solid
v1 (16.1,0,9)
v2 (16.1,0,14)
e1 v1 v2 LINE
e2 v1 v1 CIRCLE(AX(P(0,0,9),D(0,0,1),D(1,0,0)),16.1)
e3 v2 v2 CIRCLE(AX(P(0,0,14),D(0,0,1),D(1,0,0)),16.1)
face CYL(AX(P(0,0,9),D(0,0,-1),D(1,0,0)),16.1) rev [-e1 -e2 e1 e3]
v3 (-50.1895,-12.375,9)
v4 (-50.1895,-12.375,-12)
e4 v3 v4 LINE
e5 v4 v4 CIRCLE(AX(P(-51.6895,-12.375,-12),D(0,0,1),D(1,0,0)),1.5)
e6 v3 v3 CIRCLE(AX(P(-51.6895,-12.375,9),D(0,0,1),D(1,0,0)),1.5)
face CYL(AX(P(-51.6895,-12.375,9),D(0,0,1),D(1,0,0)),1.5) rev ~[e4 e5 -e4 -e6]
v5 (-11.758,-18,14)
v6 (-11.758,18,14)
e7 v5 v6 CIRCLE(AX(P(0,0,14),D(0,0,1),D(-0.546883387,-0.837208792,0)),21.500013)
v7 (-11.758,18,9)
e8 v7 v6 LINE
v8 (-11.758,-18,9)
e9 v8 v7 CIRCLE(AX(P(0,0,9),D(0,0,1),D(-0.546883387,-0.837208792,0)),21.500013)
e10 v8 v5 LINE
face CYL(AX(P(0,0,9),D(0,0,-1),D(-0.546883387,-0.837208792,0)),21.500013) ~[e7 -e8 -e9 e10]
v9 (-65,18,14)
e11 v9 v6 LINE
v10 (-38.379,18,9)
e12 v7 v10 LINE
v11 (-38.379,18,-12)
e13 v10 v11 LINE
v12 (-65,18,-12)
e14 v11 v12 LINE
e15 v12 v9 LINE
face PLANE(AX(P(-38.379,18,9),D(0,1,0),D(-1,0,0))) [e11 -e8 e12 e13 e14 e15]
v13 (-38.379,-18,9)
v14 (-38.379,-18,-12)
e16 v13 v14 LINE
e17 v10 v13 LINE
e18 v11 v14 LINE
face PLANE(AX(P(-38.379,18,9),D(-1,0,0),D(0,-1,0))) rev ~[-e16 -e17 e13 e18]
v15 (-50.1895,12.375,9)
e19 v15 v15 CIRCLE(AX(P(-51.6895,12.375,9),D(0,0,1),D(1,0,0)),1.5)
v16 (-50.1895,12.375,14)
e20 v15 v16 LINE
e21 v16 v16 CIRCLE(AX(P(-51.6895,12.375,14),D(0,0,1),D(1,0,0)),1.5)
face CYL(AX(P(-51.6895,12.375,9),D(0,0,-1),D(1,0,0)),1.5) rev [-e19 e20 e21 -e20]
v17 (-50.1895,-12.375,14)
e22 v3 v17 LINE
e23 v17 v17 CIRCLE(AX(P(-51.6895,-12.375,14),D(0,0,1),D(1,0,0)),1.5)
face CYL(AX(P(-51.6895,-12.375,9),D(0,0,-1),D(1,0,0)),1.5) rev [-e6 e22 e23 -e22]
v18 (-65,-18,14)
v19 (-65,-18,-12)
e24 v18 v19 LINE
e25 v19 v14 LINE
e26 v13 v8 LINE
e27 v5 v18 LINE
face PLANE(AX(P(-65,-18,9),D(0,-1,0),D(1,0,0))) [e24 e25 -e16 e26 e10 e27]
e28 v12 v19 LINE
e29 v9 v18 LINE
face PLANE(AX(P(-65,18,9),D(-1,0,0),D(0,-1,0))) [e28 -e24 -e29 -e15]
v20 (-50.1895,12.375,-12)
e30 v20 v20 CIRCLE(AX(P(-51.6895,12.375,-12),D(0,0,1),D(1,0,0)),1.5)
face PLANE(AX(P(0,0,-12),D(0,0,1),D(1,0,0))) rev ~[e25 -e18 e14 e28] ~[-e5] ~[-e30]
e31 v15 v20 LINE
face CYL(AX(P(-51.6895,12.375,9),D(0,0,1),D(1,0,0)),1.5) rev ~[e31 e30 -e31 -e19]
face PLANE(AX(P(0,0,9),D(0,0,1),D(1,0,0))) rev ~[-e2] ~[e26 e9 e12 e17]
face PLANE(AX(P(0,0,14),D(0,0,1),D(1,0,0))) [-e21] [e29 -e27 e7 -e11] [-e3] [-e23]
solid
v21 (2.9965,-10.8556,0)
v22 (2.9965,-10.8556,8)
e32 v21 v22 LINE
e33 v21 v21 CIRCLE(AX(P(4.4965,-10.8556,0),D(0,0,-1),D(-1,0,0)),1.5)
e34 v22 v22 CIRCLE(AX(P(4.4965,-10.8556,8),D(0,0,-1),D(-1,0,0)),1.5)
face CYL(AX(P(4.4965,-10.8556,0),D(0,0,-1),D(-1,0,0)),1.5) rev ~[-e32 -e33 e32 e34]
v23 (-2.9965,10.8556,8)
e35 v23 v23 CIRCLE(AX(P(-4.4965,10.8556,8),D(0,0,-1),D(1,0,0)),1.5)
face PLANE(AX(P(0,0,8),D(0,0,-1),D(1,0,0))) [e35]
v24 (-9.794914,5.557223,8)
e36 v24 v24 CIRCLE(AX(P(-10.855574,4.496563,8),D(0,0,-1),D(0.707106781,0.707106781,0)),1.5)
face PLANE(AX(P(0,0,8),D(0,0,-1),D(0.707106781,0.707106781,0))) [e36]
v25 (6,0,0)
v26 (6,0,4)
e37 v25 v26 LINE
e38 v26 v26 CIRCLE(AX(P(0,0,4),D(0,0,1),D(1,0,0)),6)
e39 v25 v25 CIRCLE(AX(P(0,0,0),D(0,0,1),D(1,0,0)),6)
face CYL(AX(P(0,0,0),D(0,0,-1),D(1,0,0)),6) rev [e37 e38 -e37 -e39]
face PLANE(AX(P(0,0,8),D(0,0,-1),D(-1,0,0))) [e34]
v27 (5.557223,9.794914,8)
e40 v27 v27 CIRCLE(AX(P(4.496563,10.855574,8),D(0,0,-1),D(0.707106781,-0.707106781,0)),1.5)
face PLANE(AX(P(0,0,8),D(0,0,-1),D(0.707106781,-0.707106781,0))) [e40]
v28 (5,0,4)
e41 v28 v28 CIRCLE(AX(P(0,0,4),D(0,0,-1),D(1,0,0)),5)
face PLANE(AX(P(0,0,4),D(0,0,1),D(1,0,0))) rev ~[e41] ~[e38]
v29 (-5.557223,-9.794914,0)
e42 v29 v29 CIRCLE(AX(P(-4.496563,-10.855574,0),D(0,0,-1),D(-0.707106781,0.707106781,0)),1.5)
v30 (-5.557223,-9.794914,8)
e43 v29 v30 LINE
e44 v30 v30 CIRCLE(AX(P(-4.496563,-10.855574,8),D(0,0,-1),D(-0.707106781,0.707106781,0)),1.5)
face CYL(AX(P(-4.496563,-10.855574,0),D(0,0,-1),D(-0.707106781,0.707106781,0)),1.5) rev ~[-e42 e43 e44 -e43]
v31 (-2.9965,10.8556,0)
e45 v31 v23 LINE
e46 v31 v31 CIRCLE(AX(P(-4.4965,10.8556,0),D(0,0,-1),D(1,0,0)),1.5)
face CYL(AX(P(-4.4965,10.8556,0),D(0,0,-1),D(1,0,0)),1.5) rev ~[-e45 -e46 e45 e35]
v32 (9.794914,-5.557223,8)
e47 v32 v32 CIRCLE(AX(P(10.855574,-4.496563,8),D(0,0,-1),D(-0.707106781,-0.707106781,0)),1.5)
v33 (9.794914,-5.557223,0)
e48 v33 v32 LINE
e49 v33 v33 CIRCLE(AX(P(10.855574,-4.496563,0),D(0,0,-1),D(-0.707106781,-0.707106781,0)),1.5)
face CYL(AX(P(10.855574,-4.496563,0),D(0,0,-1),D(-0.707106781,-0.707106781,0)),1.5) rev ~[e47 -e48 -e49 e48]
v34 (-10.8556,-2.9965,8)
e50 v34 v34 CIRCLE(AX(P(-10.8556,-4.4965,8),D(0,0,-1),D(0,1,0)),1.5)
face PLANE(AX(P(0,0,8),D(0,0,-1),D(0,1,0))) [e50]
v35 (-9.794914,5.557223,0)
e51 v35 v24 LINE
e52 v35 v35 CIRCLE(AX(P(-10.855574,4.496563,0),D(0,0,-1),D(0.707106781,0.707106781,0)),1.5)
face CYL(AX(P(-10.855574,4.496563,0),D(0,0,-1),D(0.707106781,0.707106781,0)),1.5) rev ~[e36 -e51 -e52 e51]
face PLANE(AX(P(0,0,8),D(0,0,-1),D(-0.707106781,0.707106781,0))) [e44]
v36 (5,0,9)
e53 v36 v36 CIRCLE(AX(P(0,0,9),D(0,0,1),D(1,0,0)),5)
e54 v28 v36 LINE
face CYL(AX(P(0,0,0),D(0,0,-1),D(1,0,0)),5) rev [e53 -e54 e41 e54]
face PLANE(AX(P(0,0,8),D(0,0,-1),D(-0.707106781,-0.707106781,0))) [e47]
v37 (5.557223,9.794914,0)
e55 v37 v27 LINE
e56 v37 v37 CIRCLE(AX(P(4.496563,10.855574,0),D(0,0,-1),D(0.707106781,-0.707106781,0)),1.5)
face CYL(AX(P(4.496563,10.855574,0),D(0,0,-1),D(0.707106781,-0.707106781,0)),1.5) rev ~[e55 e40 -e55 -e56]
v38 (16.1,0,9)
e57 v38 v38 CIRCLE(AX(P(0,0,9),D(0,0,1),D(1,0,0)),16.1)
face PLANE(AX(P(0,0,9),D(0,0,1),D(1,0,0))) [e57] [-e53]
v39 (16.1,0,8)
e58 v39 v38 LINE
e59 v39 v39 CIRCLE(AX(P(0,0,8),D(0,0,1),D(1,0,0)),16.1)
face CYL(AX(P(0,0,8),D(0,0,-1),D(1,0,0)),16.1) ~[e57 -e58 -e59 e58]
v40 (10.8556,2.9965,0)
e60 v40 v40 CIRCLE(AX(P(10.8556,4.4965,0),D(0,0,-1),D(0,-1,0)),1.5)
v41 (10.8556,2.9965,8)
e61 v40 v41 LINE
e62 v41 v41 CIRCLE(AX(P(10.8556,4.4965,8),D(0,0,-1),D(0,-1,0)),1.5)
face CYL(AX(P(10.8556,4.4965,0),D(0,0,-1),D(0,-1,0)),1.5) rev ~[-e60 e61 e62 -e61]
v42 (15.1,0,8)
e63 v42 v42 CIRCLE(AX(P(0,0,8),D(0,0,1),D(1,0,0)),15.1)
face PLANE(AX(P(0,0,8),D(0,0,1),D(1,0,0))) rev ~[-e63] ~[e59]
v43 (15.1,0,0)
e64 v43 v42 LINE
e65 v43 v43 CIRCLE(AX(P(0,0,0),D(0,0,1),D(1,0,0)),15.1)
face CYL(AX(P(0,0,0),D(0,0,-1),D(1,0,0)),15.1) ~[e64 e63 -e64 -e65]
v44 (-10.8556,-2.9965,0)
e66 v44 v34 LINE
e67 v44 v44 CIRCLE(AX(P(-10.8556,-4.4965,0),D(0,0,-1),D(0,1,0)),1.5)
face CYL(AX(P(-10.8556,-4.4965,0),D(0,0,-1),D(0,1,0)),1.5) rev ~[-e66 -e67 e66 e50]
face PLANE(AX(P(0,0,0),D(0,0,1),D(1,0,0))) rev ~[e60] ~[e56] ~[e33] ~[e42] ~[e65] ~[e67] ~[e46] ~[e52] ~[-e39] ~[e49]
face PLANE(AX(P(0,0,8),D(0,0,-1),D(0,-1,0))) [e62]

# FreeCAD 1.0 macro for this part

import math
import FreeCAD as App
import Part
import Sketcher
from FreeCAD import Vector
Q = App.Units.Quantity


def add_polygon(sketch, points):
    """Adds a closed chain of lines whose ends are joined by coincident constraints."""
    first, n = sketch.GeometryCount, len(points)
    for a, b in zip(points, points[1:] + points[:1]):
        sketch.addGeometry(Part.LineSegment(App.Vector(*a, 0), App.Vector(*b, 0)), False)
    for i in range(n):
        sketch.addConstraint(Sketcher.Constraint("Coincident", first + i, 2, first + (i + 1) % n, 1))

doc = App.newDocument("Part")
body = doc.addObject("PartDesign::Body", "Body")
body.AllowCompound = True

sketch1 = doc.addObject("Sketcher::SketchObject", "Sketch")
body.addObject(sketch1)
sketch1.AttachmentSupport = (doc.XY_Plane, [""])
sketch1.MapMode = "FlatFace"
sketch1.addGeometry([
    Part.Circle(Vector(0, 0, 0), Vector(0, 0, 1), 15),
    Part.Circle(Vector(0, 0, 0), Vector(0, 0, 1), 5),
], False)
sketch1.addConstraint([
    Sketcher.Constraint("Coincident", 0, 3, -1, 1),
    Sketcher.Constraint("Coincident", 1, 3, -1, 1),
    Sketcher.Constraint("Diameter", 1, Q("10 mm")),
    Sketcher.Constraint("Diameter", 0, Q("30.2 mm")),
])
pad1 = doc.addObject("PartDesign::Pad", "Pad")
body.addObject(pad1)
pad1.Profile = sketch1
pad1.Length = 8

sketch2 = doc.addObject("Sketcher::SketchObject", "Sketch001")
body.addObject(sketch2)
sketch2.AttachmentSupport = (doc.XY_Plane, [""])
sketch2.MapMode = "FlatFace"
sketch2.AttachmentOffset = App.Placement(Vector(0, 0, 8), App.Rotation())
sketch2.addGeometry([
    Part.Circle(Vector(0, 0, 0), Vector(0, 0, 1), 16),
    Part.Circle(Vector(0, 0, 0), Vector(0, 0, 1), 5),
], False)
sketch2.addConstraint([
    Sketcher.Constraint("Coincident", 0, 3, -1, 1),
    Sketcher.Constraint("Coincident", 1, 3, -1, 1),
    Sketcher.Constraint("Diameter", 1, Q("10 mm")),
    Sketcher.Constraint("Diameter", 0, Q("32.2 mm")),
])
pad2 = doc.addObject("PartDesign::Pad", "Pad001")
body.addObject(pad2)
pad2.Profile = sketch2
pad2.Length = 1

sketch3 = doc.addObject("Sketcher::SketchObject", "Sketch002")
body.addObject(sketch3)
sketch3.AttachmentSupport = (doc.XY_Plane, [""])
sketch3.MapMode = "FlatFace"
sketch3.AttachmentOffset = App.Placement(Vector(0, 0, 9), App.Rotation())
sketch3.addGeometry([
    Part.ArcOfCircle(Part.Circle(Vector(0, 0, 0), Vector(0, 0, 1), 21.5), math.radians(-123), math.radians(123)),
    Part.LineSegment(Vector(-11.8, 18, 0), Vector(-65, 18, 0)),
    Part.LineSegment(Vector(-65, 18, 0), Vector(-65, -18, 0)),
    Part.LineSegment(Vector(-65, -18, 0), Vector(-11.8, -18, 0)),
    Part.Circle(Vector(0, 0, 0), Vector(0, 0, 1), 16.1),
    Part.Circle(Vector(-51.7, 12.4, 0), Vector(0, 0, 1), 1.5),
    Part.Circle(Vector(-51.7, -12.4, 0), Vector(0, 0, 1), 1.5),
], False)
sketch3.addConstraint([
    Sketcher.Constraint("Coincident", 0, 2, 1, 1),
    Sketcher.Constraint("Coincident", 1, 2, 2, 1),
    Sketcher.Constraint("Coincident", 2, 2, 3, 1),
    Sketcher.Constraint("Coincident", 3, 2, 0, 1),
    Sketcher.Constraint("Horizontal", 1),
    Sketcher.Constraint("Vertical", 2),
    Sketcher.Constraint("Horizontal", 3),
    Sketcher.Constraint("Coincident", 0, 3, -1, 1),
    Sketcher.Constraint("Coincident", 4, 3, -1, 1),
    Sketcher.Constraint("Equal", 5, 6),
    Sketcher.Constraint("Symmetric", 5, 3, 6, 3, -1),
    Sketcher.Constraint("Vertical", 0, 2, 3, 2),
    Sketcher.Constraint("Diameter", 5, Q("3 mm")),
    Sketcher.Constraint("Radius", 0, Q("21.5 mm")),
    Sketcher.Constraint("DistanceY", 2, 2, 2, 1, Q("36 mm")),
    Sketcher.Constraint("DistanceX", 1, 2, -1, 1, Q("65 mm")),
    Sketcher.Constraint("Diameter", 4, Q("32.2 mm")),
    Sketcher.Constraint("DistanceY", 6, 3, 5, 3, Q("24.75 mm")),
    Sketcher.Constraint("DistanceX", 5, 3, -1, 1, Q("51.6895 mm")),
])
pad3 = doc.addObject("PartDesign::Pad", "Pad002")
body.addObject(pad3)
pad3.Profile = sketch3
pad3.Length = 5

sketch4 = doc.addObject("Sketcher::SketchObject", "Sketch003")
body.addObject(sketch4)
sketch4.AttachmentSupport = (doc.XY_Plane, [""])
sketch4.MapMode = "FlatFace"
sketch4.addGeometry(Part.Circle(Vector(4.5, -10.9, 0), Vector(0, 0, 1), 1.5), False)
sketch4.addConstraint([
    Sketcher.Constraint("Diameter", 0, Q("3 mm")),
    Sketcher.Constraint("DistanceX", -1, 1, 0, 3, Q("4.4965 mm")),
    Sketcher.Constraint("DistanceY", 0, 3, -1, 1, Q("10.8556 mm")),
])
pocket1 = doc.addObject("PartDesign::Pocket", "Pocket")
body.addObject(pocket1)
pocket1.Profile = sketch4
pocket1.Length = 8
pocket1.Reversed = True
doc.recompute()

polarpattern = doc.addObject("PartDesign::PolarPattern", "PolarPattern")
body.addObject(polarpattern)
polarpattern.Originals = [pocket1]
polarpattern.Axis = (doc.Z_Axis, [""])
polarpattern.Angle = 360
polarpattern.Occurrences = 8
body.Tip = polarpattern

sketch5 = doc.addObject("Sketcher::SketchObject", "Sketch004")
body.addObject(sketch5)
sketch5.AttachmentSupport = (doc.XY_Plane, [""])
sketch5.MapMode = "FlatFace"
sketch5.AttachmentOffset = App.Placement(Vector(0, 0, 9), App.Rotation())
add_polygon(sketch5, [(-38.4, -18), (-38.4, 18), (-65, 18), (-65, -18)])
sketch5.addGeometry(Part.Circle(Vector(-51.7, -12.4, 0), Vector(0, 0, 1), 1.5), False)
sketch5.addGeometry(Part.Circle(Vector(-51.7, 12.4, 0), Vector(0, 0, 1), 1.5), False)
sketch5.addConstraint([
    Sketcher.Constraint("Vertical", 0),
    Sketcher.Constraint("Horizontal", 1),
    Sketcher.Constraint("Vertical", 2),
    Sketcher.Constraint("Horizontal", 3),
    Sketcher.Constraint("Equal", 4, 5),
    Sketcher.Constraint("Symmetric", 4, 3, 5, 3, -1),
    Sketcher.Constraint("Diameter", 4, Q("3 mm")),
    Sketcher.Constraint("DistanceY", 0, 1, 0, 2, Q("36 mm")),
    Sketcher.Constraint("DistanceX", 1, 2, -1, 1, Q("65 mm")),
    Sketcher.Constraint("DistanceY", 4, 3, 5, 3, Q("24.75 mm")),
    Sketcher.Constraint("DistanceY", -1, 1, 0, 2, Q("18 mm")),
    Sketcher.Constraint("DistanceX", 1, 2, 1, 1, Q("26.621 mm")),
    Sketcher.Constraint("DistanceX", 4, 3, -1, 1, Q("51.6895 mm")),
])
pad4 = doc.addObject("PartDesign::Pad", "Pad003")
body.addObject(pad4)
pad4.Profile = sketch5
pad4.Length = 21
pad4.Reversed = True

sketch6 = doc.addObject("Sketcher::SketchObject", "Sketch005")
body.addObject(sketch6)
sketch6.AttachmentSupport = (doc.XY_Plane, [""])
sketch6.MapMode = "FlatFace"
sketch6.AttachmentOffset = App.Placement(Vector(0, 0, 9), App.Rotation())
sketch6.addGeometry([
    Part.Circle(Vector(-51.7, 12.4, 0), Vector(0, 0, 1), 1.5),
    Part.Circle(Vector(-51.7, -12.4, 0), Vector(0, 0, 1), 1.5),
], False)
sketch6.addConstraint([
    Sketcher.Constraint("Equal", 0, 1),
    Sketcher.Constraint("Symmetric", 0, 3, 1, 3, -1),
    Sketcher.Constraint("Diameter", 0, Q("3 mm")),
    Sketcher.Constraint("DistanceY", 1, 3, 0, 3, Q("24.75 mm")),
    Sketcher.Constraint("DistanceX", 0, 3, -1, 1, Q("51.6895 mm")),
])
pocket2 = doc.addObject("PartDesign::Pocket", "Pocket001")
body.addObject(pocket2)
pocket2.Profile = sketch6
pocket2.Type = "ThroughAll"
pocket2.Midplane = True

sketch7 = doc.addObject("Sketcher::SketchObject", "Sketch006")
body.addObject(sketch7)
sketch7.AttachmentSupport = (doc.XY_Plane, [""])
sketch7.MapMode = "FlatFace"
sketch7.addGeometry(Part.Circle(Vector(0, 0, 0), Vector(0, 0, 1), 6), False)
sketch7.addConstraint([
    Sketcher.Constraint("Coincident", 0, 3, -1, 1),
    Sketcher.Constraint("Diameter", 0, Q("12 mm")),
])
pocket3 = doc.addObject("PartDesign::Pocket", "Pocket002")
body.addObject(pocket3)
pocket3.Profile = sketch7
pocket3.Length = 4
pocket3.Reversed = True

doc.recompute()
